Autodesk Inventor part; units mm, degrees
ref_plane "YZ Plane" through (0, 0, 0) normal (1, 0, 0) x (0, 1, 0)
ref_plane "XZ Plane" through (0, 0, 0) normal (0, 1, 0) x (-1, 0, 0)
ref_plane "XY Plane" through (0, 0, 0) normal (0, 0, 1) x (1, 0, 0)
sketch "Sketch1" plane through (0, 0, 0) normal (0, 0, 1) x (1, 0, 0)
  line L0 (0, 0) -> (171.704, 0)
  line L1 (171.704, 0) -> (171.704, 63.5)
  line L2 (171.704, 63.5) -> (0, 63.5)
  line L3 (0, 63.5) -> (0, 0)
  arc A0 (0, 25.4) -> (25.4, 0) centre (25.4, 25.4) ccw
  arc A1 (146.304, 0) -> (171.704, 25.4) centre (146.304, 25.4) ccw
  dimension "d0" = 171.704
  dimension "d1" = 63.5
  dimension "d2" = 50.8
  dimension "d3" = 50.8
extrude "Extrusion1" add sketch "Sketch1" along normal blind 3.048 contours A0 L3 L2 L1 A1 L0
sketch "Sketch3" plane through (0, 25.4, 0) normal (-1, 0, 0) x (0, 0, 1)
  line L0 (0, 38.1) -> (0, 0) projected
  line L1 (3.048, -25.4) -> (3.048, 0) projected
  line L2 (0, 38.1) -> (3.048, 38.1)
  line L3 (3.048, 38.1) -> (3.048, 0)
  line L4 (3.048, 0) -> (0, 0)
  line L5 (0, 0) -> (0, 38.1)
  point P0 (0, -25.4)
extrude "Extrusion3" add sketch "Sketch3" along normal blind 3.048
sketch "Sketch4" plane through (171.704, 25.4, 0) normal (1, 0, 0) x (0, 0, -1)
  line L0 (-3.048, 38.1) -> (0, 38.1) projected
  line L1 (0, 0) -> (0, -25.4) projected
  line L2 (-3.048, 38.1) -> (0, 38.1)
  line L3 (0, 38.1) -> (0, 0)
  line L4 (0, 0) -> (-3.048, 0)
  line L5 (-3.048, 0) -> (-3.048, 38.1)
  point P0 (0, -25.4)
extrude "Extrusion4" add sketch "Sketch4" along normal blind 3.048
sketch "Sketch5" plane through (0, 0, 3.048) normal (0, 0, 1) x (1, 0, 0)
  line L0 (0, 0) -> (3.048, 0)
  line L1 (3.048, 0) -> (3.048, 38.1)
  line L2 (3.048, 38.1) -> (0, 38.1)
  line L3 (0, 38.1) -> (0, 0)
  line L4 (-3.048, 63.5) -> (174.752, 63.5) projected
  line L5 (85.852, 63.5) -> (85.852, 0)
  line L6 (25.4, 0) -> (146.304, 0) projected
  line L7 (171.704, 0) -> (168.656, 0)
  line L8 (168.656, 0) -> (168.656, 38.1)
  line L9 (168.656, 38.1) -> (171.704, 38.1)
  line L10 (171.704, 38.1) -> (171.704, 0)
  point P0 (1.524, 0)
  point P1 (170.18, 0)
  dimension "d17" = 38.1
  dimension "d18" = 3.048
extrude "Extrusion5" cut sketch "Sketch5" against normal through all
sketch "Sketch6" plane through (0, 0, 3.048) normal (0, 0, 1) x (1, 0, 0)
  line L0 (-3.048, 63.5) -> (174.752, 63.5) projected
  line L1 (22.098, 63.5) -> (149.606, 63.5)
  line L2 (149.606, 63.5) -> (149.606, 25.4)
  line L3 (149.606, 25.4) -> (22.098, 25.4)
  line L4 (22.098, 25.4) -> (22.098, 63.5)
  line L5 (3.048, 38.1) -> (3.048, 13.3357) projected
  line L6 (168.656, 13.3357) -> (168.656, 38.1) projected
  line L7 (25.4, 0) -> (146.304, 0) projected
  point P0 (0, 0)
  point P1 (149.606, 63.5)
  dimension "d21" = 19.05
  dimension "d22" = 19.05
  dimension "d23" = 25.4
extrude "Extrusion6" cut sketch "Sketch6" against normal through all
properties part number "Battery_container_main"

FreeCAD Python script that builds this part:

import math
import FreeCAD as App
import Part
import Sketcher
Q = App.Units.Quantity

doc = App.newDocument("Part")
body = doc.addObject("PartDesign::Body", "Body")

# Sketch on XY plane
sketch1 = body.newObject("Sketcher::SketchObject", "Sketch")
sketch1.AttachmentSupport = (doc.getObject("XY_Plane"), [""])
sketch1.MapMode = "FlatFace"
sketch1.addGeometry([
    Part.ArcOfCircle(Part.Circle(App.Vector(25.4, 25.4, 0), App.Vector(0, 0, 1), 25.4), math.radians(180), math.radians(270)),  # 0
    Part.LineSegment(App.Vector(25.4, 0, 0), App.Vector(146.304, 0, 0)),  # 1
    Part.ArcOfCircle(Part.Circle(App.Vector(146.304, 25.4, 0), App.Vector(0, 0, 1), 25.4), math.radians(-90), math.radians(0)),  # 2
    Part.LineSegment(App.Vector(171.704, 25.4, 0), App.Vector(171.704, 63.5, 0)),  # 3
    Part.LineSegment(App.Vector(171.704, 63.5, 0), App.Vector(0, 63.5, 0)),  # 4
    Part.LineSegment(App.Vector(0, 63.5, 0), App.Vector(0, 25.4, 0)),  # 5
], False)
sketch1.addConstraint([
    Sketcher.Constraint("Tangent", 0, 2, 1, 1),
    Sketcher.Constraint("Tangent", 1, 2, 2, 1),
    Sketcher.Constraint("Tangent", 2, 2, 3, 1),
    Sketcher.Constraint("Coincident", 3, 2, 4, 1),
    Sketcher.Constraint("Coincident", 4, 2, 5, 1),
    Sketcher.Constraint("Tangent", 5, 2, 0, 1),
    Sketcher.Constraint("Horizontal", 1),
    Sketcher.Constraint("Vertical", 3),
    Sketcher.Constraint("Horizontal", 4),
    Sketcher.Constraint("Vertical", 5),
    Sketcher.Constraint("Equal", 0, 2),
    Sketcher.Constraint("PointOnObject", 0, 2, -1),
    Sketcher.Constraint("PointOnObject", 4, 2, -2),
    Sketcher.Constraint("Radius", 0, Q("1 in")),
    Sketcher.Constraint("DistanceX", 4, 2, 4, 1, Q("6.76 in")),
    Sketcher.Constraint("DistanceY", -1, 1, 3, 2, Q("2.5 in")),
])
pad1 = body.newObject("PartDesign::Pad", "Pad")
pad1.Profile = sketch1
pad1.Length = Q("0.12 in")

# Sketch on YZ plane
sketch2 = body.newObject("Sketcher::SketchObject", "Sketch001")
sketch2.AttachmentSupport = (doc.getObject("YZ_Plane"), [""])
sketch2.MapMode = "FlatFace"
sketch2.addGeometry([
    Part.LineSegment(App.Vector(63.5, 3.048, 0), App.Vector(63.5, 0, 0)),
    Part.LineSegment(App.Vector(63.5, 0, 0), App.Vector(25.4, 0, 0)),
    Part.LineSegment(App.Vector(25.4, 0, 0), App.Vector(25.4, 3.048, 0)),
    Part.LineSegment(App.Vector(25.4, 3.048, 0), App.Vector(63.5, 3.048, 0)),
], False)
sketch2.addConstraint([
    Sketcher.Constraint("Coincident", 0, 2, 1, 1),
    Sketcher.Constraint("Coincident", 1, 2, 2, 1),
    Sketcher.Constraint("Coincident", 2, 2, 3, 1),
    Sketcher.Constraint("Coincident", 3, 2, 0, 1),
    Sketcher.Constraint("Vertical", 0),
    Sketcher.Constraint("Horizontal", 1),
    Sketcher.Constraint("Vertical", 2),
    Sketcher.Constraint("Horizontal", 3),
    Sketcher.Constraint("PointOnObject", 0, 2, -1),
    Sketcher.Constraint("DistanceX", 1, 2, 1, 1, Q("1.5 in")),
    Sketcher.Constraint("DistanceX", -1, 1, 1, 2, Q("1 in")),
    Sketcher.Constraint("DistanceY", 0, 2, 0, 1, Q("0.12 in")),
])
pad2 = body.newObject("PartDesign::Pad", "Pad001")
pad2.Profile = sketch2
pad2.Length = Q("0.12 in")
pad2.Reversed = True

# Sketch on YZ plane
sketch3 = body.newObject("Sketcher::SketchObject", "Sketch002")
sketch3.AttachmentSupport = (doc.getObject("YZ_Plane"), [""])
sketch3.MapMode = "FlatFace"
sketch3.AttachmentOffset = App.Placement(App.Vector(0, 0, 6.76 * 25.4), App.Rotation())
sketch3.addGeometry([
    Part.LineSegment(App.Vector(63.5, 0, 0), App.Vector(63.5, 3.048, 0)),
    Part.LineSegment(App.Vector(63.5, 3.048, 0), App.Vector(25.4, 3.048, 0)),
    Part.LineSegment(App.Vector(25.4, 3.048, 0), App.Vector(25.4, 0, 0)),
    Part.LineSegment(App.Vector(25.4, 0, 0), App.Vector(63.5, 0, 0)),
], False)
sketch3.addConstraint([
    Sketcher.Constraint("Coincident", 0, 2, 1, 1),
    Sketcher.Constraint("Coincident", 1, 2, 2, 1),
    Sketcher.Constraint("Coincident", 2, 2, 3, 1),
    Sketcher.Constraint("Coincident", 3, 2, 0, 1),
    Sketcher.Constraint("Vertical", 0),
    Sketcher.Constraint("Horizontal", 1),
    Sketcher.Constraint("Vertical", 2),
    Sketcher.Constraint("Horizontal", 3),
    Sketcher.Constraint("PointOnObject", 2, 2, -1),
    Sketcher.Constraint("DistanceX", 1, 2, 1, 1, Q("1.5 in")),
    Sketcher.Constraint("DistanceX", -1, 1, 1, 2, Q("1 in")),
    Sketcher.Constraint("DistanceY", 0, 1, 0, 2, Q("0.12 in")),
])
pad3 = body.newObject("PartDesign::Pad", "Pad002")
pad3.Profile = sketch3
pad3.Length = Q("0.12 in")

# Sketch on XY plane
sketch4 = body.newObject("Sketcher::SketchObject", "Sketch003")
sketch4.AttachmentSupport = (doc.getObject("XY_Plane"), [""])
sketch4.MapMode = "FlatFace"
sketch4.AttachmentOffset = App.Placement(App.Vector(0, 0, 0.12 * 25.4), App.Rotation())
sketch4.addGeometry([
    Part.LineSegment(App.Vector(0, 38.1, 0), App.Vector(0, 0, 0)),  # 0
    Part.LineSegment(App.Vector(0, 0, 0), App.Vector(3.048, 0, 0)),  # 1
    Part.LineSegment(App.Vector(3.048, 0, 0), App.Vector(3.048, 38.1, 0)),  # 2
    Part.LineSegment(App.Vector(3.048, 38.1, 0), App.Vector(0, 38.1, 0)),  # 3
    Part.LineSegment(App.Vector(168.656, 0, 0), App.Vector(171.704, 0, 0)),  # 4
    Part.LineSegment(App.Vector(171.704, 0, 0), App.Vector(171.704, 38.1, 0)),  # 5
    Part.LineSegment(App.Vector(171.704, 38.1, 0), App.Vector(168.656, 38.1, 0)),  # 6
    Part.LineSegment(App.Vector(168.656, 38.1, 0), App.Vector(168.656, 0, 0)),  # 7
], False)
sketch4.addConstraint([
    Sketcher.Constraint("Coincident", 0, 2, 1, 1),
    Sketcher.Constraint("Coincident", 1, 2, 2, 1),
    Sketcher.Constraint("Coincident", 2, 2, 3, 1),
    Sketcher.Constraint("Coincident", 3, 2, 0, 1),
    Sketcher.Constraint("Coincident", 4, 2, 5, 1),
    Sketcher.Constraint("Coincident", 5, 2, 6, 1),
    Sketcher.Constraint("Coincident", 6, 2, 7, 1),
    Sketcher.Constraint("Coincident", 7, 2, 4, 1),
    Sketcher.Constraint("Vertical", 0),
    Sketcher.Constraint("Horizontal", 1),
    Sketcher.Constraint("Vertical", 2),
    Sketcher.Constraint("Horizontal", 3),
    Sketcher.Constraint("Horizontal", 4),
    Sketcher.Constraint("Vertical", 5),
    Sketcher.Constraint("Horizontal", 6),
    Sketcher.Constraint("Vertical", 7),
    Sketcher.Constraint("Coincident", 0, 2, -1, 1),
    Sketcher.Constraint("PointOnObject", 4, 2, -1),
    Sketcher.Constraint("Horizontal", 3, 2, 5, 2),
    Sketcher.Constraint("Equal", 3, 4),
    Sketcher.Constraint("DistanceY", 0, 2, 0, 1, Q("1.5 in")),
    Sketcher.Constraint("DistanceX", 1, 1, 1, 2, Q("0.12 in")),
    Sketcher.Constraint("DistanceX", -1, 1, 4, 2, Q("6.76 in")),
])
pocket1 = body.newObject("PartDesign::Pocket", "Pocket")
pocket1.Profile = sketch4
pocket1.Type = "ThroughAll"

# Sketch on XY plane
sketch5 = body.newObject("Sketcher::SketchObject", "Sketch004")
sketch5.AttachmentSupport = (doc.getObject("XY_Plane"), [""])
sketch5.MapMode = "FlatFace"
sketch5.AttachmentOffset = App.Placement(App.Vector(0, 0, 0.12 * 25.4), App.Rotation())
sketch5.addGeometry([
    Part.LineSegment(App.Vector(149.606, 63.5, 0), App.Vector(22.098, 63.5, 0)),
    Part.LineSegment(App.Vector(22.098, 63.5, 0), App.Vector(22.098, 25.4, 0)),
    Part.LineSegment(App.Vector(22.098, 25.4, 0), App.Vector(149.606, 25.4, 0)),
    Part.LineSegment(App.Vector(149.606, 25.4, 0), App.Vector(149.606, 63.5, 0)),
], False)
sketch5.addConstraint([
    Sketcher.Constraint("Coincident", 0, 2, 1, 1),
    Sketcher.Constraint("Coincident", 1, 2, 2, 1),
    Sketcher.Constraint("Coincident", 2, 2, 3, 1),
    Sketcher.Constraint("Coincident", 3, 2, 0, 1),
    Sketcher.Constraint("Horizontal", 0),
    Sketcher.Constraint("Vertical", 1),
    Sketcher.Constraint("Horizontal", 2),
    Sketcher.Constraint("Vertical", 3),
    Sketcher.Constraint("DistanceY", -1, 1, 1, 2, Q("1 in")),
    Sketcher.Constraint("DistanceY", 1, 2, 1, 1, Q("1.5 in")),
    Sketcher.Constraint("DistanceX", 0, 2, 0, 1, Q("5.02 in")),
    Sketcher.Constraint("DistanceX", -1, 1, 0, 2, Q("0.87 in")),
])
pocket2 = body.newObject("PartDesign::Pocket", "Pocket001")
pocket2.Profile = sketch5
pocket2.Type = "ThroughAll"

doc.recompute()
